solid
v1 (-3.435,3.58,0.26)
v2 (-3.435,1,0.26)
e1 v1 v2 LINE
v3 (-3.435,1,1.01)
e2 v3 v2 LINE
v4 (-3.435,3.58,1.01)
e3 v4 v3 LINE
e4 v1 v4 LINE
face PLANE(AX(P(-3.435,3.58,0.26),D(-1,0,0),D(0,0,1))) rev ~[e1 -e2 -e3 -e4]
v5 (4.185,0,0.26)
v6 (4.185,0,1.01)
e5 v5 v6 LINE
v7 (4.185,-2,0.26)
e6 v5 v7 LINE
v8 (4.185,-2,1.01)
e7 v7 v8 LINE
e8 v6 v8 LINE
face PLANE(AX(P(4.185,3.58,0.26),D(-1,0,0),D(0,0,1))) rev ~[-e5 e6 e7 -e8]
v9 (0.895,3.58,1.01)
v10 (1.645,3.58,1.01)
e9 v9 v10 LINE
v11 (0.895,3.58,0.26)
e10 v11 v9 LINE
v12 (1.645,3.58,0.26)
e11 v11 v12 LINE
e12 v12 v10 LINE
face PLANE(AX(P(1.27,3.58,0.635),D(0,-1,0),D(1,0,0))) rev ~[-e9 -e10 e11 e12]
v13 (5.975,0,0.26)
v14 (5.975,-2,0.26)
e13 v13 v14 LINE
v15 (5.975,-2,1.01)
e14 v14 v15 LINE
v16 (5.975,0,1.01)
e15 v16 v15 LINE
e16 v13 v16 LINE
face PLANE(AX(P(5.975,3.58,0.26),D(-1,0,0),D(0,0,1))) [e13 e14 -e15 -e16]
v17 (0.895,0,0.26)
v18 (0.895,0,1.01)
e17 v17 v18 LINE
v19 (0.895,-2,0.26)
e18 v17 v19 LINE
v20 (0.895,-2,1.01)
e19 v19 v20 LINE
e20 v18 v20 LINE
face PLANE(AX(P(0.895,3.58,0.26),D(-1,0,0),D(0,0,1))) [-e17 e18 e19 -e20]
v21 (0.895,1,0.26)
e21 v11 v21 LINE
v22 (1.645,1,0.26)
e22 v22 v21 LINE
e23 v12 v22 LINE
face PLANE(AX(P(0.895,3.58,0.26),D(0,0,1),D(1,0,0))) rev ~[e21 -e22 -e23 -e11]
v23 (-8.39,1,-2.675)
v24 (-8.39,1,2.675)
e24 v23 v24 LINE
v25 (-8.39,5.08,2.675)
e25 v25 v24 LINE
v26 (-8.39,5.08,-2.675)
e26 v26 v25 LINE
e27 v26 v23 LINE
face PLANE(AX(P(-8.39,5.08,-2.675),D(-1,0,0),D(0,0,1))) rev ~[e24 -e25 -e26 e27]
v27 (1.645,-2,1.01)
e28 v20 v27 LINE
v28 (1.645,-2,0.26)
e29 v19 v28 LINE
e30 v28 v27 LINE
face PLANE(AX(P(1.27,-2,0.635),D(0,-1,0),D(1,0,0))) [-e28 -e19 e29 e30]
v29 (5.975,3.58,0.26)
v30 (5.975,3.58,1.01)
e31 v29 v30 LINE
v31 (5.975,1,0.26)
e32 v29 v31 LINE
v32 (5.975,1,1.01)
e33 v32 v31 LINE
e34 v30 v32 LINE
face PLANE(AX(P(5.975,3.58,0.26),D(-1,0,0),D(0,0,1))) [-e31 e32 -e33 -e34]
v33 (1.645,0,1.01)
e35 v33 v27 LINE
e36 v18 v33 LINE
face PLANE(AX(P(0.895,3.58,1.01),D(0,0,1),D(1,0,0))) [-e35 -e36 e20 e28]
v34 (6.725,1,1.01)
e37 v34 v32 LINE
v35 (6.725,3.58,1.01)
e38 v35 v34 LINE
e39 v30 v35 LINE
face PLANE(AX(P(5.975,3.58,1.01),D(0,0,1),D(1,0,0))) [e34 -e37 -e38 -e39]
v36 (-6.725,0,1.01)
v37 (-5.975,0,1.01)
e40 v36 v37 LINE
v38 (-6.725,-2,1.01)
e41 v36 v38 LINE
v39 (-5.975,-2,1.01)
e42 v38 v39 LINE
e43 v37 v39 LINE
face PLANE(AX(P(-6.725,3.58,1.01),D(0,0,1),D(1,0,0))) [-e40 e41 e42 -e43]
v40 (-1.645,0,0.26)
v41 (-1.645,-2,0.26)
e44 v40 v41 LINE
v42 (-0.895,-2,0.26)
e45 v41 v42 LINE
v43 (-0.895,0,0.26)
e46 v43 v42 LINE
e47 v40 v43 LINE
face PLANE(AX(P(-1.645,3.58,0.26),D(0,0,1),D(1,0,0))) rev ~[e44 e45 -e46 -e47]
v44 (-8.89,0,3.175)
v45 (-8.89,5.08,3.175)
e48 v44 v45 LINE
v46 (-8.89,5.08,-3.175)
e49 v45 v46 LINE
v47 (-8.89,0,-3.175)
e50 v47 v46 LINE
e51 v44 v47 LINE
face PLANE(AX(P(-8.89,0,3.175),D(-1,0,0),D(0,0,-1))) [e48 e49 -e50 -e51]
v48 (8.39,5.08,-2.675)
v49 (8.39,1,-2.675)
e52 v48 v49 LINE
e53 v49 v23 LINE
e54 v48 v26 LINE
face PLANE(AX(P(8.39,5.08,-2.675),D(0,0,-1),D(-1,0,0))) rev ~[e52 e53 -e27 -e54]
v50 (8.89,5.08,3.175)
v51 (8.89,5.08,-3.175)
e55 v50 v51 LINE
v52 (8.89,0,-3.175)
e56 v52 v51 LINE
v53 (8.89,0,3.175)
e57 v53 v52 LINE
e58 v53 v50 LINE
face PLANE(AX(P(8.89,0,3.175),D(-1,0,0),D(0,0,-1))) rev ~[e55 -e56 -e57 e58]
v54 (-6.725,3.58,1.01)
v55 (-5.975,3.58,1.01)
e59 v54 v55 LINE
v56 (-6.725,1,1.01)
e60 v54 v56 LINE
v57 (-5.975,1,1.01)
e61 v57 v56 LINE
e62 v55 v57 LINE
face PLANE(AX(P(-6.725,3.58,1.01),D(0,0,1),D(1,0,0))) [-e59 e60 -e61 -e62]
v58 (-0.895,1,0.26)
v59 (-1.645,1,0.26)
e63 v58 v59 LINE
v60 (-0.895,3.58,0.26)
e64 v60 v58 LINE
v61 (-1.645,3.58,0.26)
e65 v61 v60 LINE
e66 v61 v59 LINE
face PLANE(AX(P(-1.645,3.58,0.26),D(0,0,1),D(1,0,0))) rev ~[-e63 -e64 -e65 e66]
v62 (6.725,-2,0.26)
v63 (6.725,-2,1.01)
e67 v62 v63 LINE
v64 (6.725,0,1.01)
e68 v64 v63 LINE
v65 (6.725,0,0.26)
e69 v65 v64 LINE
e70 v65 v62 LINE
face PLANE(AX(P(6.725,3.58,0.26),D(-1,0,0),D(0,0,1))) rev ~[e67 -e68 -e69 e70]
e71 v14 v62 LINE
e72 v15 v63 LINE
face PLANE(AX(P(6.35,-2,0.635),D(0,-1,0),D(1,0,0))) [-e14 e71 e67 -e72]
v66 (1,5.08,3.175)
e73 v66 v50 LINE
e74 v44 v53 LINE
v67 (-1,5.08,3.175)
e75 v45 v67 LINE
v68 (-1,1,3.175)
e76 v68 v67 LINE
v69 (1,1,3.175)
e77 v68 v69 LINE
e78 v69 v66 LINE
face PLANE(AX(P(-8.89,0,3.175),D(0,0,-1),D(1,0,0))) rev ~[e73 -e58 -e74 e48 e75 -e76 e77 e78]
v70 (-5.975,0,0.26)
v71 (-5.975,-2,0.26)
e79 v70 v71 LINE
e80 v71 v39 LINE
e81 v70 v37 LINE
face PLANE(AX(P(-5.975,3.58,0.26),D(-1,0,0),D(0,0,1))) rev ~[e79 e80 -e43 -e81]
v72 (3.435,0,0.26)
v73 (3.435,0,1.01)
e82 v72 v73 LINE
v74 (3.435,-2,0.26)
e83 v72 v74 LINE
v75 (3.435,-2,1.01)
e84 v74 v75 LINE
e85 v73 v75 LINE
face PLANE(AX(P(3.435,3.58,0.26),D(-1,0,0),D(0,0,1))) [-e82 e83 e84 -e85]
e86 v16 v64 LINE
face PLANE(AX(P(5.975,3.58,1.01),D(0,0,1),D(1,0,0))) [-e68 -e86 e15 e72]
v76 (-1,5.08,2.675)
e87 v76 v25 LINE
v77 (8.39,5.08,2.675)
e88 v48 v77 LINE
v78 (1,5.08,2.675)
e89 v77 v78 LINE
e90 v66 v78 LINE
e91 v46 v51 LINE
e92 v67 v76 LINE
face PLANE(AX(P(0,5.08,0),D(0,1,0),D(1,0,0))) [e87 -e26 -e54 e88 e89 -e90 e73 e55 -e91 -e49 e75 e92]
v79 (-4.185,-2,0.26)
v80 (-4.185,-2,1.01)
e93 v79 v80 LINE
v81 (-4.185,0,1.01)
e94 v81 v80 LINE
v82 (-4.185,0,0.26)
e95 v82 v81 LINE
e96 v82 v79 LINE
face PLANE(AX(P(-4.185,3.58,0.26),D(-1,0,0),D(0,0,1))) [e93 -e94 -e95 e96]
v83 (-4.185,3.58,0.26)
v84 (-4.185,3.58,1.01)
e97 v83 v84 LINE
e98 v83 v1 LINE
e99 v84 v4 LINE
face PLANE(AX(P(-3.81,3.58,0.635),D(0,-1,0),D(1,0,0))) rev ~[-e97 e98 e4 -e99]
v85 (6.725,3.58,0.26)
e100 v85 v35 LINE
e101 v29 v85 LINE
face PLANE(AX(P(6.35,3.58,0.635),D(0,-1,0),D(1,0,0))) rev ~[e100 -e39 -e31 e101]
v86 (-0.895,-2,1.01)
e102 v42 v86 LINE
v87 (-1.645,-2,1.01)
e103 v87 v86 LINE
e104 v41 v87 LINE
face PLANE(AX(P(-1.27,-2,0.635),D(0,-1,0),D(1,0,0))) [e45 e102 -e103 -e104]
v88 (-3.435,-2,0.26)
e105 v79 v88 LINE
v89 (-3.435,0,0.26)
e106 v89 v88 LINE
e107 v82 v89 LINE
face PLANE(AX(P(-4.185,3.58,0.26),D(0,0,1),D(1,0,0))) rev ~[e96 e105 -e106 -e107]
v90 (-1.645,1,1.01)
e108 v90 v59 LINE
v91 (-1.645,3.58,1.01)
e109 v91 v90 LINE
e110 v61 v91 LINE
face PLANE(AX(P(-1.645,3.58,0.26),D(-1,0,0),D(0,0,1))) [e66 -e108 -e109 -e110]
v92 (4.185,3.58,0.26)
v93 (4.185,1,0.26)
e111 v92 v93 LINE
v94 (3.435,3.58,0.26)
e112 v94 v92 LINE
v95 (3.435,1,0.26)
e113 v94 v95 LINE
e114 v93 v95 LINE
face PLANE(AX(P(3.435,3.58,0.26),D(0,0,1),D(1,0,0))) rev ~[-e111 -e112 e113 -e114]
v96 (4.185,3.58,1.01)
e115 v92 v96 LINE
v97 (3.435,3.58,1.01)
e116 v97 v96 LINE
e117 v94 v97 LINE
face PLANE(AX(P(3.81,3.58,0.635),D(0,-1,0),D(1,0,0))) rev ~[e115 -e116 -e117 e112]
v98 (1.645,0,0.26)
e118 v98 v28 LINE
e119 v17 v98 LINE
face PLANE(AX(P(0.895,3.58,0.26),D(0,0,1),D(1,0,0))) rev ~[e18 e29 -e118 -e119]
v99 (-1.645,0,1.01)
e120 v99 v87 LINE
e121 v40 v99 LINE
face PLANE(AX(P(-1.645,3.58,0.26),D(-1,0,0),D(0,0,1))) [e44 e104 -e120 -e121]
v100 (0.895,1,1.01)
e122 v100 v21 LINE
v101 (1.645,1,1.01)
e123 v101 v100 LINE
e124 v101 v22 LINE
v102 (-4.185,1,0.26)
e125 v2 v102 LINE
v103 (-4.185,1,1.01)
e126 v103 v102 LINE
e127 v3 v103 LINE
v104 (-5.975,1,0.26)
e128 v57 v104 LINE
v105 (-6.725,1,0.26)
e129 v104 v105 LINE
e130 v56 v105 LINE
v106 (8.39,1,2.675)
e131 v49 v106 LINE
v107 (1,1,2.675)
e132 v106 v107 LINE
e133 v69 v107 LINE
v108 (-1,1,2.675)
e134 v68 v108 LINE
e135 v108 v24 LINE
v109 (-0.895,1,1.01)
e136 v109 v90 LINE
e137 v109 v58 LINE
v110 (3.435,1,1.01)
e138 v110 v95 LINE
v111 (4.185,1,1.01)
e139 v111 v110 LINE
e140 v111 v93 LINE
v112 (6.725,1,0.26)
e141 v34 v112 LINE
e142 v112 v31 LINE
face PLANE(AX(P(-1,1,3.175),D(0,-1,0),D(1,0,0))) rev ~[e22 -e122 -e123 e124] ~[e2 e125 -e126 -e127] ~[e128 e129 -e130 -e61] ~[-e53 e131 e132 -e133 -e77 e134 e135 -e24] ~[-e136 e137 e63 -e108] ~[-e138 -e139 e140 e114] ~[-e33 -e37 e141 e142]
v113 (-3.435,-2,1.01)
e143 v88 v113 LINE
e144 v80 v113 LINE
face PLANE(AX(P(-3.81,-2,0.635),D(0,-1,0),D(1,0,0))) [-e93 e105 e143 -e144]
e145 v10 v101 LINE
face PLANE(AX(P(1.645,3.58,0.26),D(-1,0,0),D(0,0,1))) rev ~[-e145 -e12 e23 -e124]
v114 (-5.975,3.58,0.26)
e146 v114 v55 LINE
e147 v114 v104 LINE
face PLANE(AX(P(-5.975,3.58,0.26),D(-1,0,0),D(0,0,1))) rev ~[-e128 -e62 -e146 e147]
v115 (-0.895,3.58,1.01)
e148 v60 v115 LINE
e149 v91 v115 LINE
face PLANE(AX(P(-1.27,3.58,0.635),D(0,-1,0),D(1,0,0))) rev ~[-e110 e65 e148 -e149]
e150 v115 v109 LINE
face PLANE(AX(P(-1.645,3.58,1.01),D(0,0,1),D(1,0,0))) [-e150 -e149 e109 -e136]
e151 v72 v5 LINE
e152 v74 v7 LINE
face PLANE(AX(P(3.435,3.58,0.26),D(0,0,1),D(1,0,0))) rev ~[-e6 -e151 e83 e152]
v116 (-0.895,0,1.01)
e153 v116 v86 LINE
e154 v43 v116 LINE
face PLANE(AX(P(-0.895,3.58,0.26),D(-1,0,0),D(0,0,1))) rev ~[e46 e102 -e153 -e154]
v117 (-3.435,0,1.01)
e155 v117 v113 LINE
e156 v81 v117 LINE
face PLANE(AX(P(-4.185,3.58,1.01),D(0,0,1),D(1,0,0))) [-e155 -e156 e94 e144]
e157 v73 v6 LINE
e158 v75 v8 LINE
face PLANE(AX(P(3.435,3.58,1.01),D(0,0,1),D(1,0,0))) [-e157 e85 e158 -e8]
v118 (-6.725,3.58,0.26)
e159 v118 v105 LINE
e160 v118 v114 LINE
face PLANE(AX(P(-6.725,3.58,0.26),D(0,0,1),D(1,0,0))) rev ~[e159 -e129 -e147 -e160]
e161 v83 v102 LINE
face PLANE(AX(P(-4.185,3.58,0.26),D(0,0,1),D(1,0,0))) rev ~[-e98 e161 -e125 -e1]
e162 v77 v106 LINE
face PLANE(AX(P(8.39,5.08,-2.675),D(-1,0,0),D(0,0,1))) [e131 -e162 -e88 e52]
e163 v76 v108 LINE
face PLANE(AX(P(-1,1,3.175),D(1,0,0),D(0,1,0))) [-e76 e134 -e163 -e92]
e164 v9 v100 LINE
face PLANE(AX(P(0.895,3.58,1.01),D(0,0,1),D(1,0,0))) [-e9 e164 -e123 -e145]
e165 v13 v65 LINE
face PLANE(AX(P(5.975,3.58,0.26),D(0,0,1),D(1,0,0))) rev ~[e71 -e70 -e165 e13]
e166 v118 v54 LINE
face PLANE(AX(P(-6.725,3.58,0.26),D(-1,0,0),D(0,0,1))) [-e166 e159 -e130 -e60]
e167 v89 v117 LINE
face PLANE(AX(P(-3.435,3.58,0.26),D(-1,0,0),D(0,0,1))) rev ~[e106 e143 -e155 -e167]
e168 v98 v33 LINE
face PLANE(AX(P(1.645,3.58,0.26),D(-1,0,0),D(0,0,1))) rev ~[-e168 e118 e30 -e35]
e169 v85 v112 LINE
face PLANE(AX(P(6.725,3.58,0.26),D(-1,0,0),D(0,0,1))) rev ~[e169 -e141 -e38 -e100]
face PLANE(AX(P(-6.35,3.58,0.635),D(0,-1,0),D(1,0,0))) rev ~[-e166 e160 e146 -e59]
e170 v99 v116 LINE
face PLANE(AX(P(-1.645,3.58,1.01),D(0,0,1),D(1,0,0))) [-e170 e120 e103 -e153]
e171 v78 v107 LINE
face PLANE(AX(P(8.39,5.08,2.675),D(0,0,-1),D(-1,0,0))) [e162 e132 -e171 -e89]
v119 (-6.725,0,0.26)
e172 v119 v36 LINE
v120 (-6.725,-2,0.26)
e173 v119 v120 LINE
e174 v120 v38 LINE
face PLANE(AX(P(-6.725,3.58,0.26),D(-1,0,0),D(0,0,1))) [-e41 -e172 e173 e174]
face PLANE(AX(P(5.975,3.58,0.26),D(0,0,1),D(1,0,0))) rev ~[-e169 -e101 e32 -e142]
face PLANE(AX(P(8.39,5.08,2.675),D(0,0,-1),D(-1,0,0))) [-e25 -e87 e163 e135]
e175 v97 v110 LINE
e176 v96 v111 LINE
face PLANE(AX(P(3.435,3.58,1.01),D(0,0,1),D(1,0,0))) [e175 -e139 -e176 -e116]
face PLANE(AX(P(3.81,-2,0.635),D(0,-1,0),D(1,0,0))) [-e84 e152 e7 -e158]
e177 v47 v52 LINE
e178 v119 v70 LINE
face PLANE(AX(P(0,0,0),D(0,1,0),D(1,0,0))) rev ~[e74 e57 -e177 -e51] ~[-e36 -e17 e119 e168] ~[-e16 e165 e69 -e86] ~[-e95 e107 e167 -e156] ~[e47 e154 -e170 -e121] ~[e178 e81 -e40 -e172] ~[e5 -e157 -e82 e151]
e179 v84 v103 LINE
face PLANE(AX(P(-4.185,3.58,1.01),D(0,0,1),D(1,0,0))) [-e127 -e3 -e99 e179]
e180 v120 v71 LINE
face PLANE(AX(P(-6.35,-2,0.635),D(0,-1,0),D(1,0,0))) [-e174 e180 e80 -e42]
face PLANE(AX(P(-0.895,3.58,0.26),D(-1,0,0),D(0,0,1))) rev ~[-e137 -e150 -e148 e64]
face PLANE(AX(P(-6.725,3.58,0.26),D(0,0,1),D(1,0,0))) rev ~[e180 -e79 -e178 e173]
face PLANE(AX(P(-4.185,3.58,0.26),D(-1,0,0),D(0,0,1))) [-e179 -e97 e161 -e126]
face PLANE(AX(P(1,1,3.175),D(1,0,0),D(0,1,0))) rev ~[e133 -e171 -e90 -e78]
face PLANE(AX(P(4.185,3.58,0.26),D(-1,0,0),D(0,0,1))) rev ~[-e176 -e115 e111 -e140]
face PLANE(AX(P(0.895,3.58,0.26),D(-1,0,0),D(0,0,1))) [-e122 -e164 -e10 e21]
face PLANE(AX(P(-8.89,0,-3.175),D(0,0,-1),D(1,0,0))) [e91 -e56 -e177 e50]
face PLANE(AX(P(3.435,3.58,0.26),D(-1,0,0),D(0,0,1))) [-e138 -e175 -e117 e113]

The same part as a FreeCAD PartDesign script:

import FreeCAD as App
import Part
import Sketcher
Q = App.Units.Quantity

doc = App.newDocument("Part")
body = doc.addObject("PartDesign::Body", "Body")

sketch1 = body.newObject("Sketcher::SketchObject", "Sketch")
sketch1.AttachmentSupport = (doc.getObject("XZ_Plane"), [""])
sketch1.MapMode = "FlatFace"
sketch1.addGeometry([
    Part.LineSegment(App.Vector(-9, -3, 0), App.Vector(-9, 3, 0)),
    Part.LineSegment(App.Vector(-9, 3, 0), App.Vector(9, 3, 0)),
    Part.LineSegment(App.Vector(9, 3, 0), App.Vector(9, -3, 0)),
    Part.LineSegment(App.Vector(9, -3, 0), App.Vector(-9, -3, 0)),
], False)
sketch1.addConstraint([
    Sketcher.Constraint("Coincident", 0, 2, 1, 1),
    Sketcher.Constraint("Coincident", 1, 2, 2, 1),
    Sketcher.Constraint("Coincident", 2, 2, 3, 1),
    Sketcher.Constraint("Coincident", 3, 2, 0, 1),
    Sketcher.Constraint("Vertical", 0),
    Sketcher.Constraint("Horizontal", 1),
    Sketcher.Constraint("Vertical", 2),
    Sketcher.Constraint("Horizontal", 3),
    Sketcher.Constraint("Symmetric", 0, 2, 2, 2, -1, 1),
    Sketcher.Constraint("DistanceX", 1, 1, 1, 2, Q("0.7 in")),
    Sketcher.Constraint("DistanceY", 0, 1, 0, 2, Q("0.25 in")),
])
pad1 = body.newObject("PartDesign::Pad", "Pad")
pad1.Profile = sketch1
pad1.Length = Q("0.2 in")
pad1.Reversed = True

sketch2 = body.newObject("Sketcher::SketchObject", "Sketch001")
sketch2.AttachmentSupport = (doc.getObject("XZ_Plane"), [""])
sketch2.MapMode = "FlatFace"
sketch2.AttachmentOffset = App.Placement(App.Vector(0, 0, -0.2 * 25.4), App.Rotation())
sketch2.addGeometry([
    Part.LineSegment(App.Vector(8, 3, 0), App.Vector(8, -3, 0)),
    Part.LineSegment(App.Vector(8, -3, 0), App.Vector(-8, -3, 0)),
    Part.LineSegment(App.Vector(-8, -3, 0), App.Vector(-8, 3, 0)),
    Part.LineSegment(App.Vector(-8, 3, 0), App.Vector(8, 3, 0)),
], False)
sketch2.addConstraint([
    Sketcher.Constraint("Coincident", 0, 2, 1, 1),
    Sketcher.Constraint("Coincident", 1, 2, 2, 1),
    Sketcher.Constraint("Coincident", 2, 2, 3, 1),
    Sketcher.Constraint("Coincident", 3, 2, 0, 1),
    Sketcher.Constraint("Vertical", 0),
    Sketcher.Constraint("Horizontal", 1),
    Sketcher.Constraint("Vertical", 2),
    Sketcher.Constraint("Horizontal", 3),
    Sketcher.Constraint("Symmetric", 0, 2, 2, 2, -1, 1),
    Sketcher.Constraint("DistanceX", 1, 2, 1, 1, 16.78),
    Sketcher.Constraint("DistanceY", 0, 2, 0, 1, 5.35),
])
pocket1 = body.newObject("PartDesign::Pocket", "Pocket")
pocket1.Profile = sketch2
pocket1.Length = 4.08
pocket1.Reversed = True

sketch3 = body.newObject("Sketcher::SketchObject", "Sketch002")
sketch3.AttachmentSupport = (doc.getObject("XY_Plane"), [""])
sketch3.MapMode = "FlatFace"
sketch3.AttachmentOffset = App.Placement(App.Vector(0, 0, 0.125 * 25.4), App.Rotation())
sketch3.addGeometry([
    Part.LineSegment(App.Vector(-1, 5.1, 0), App.Vector(-1, 1, 0)),
    Part.LineSegment(App.Vector(-1, 1, 0), App.Vector(1, 1, 0)),
    Part.LineSegment(App.Vector(1, 1, 0), App.Vector(1, 5.1, 0)),
    Part.LineSegment(App.Vector(1, 5.1, 0), App.Vector(-1, 5.1, 0)),
], False)
sketch3.addConstraint([
    Sketcher.Constraint("Coincident", 0, 2, 1, 1),
    Sketcher.Constraint("Coincident", 1, 2, 2, 1),
    Sketcher.Constraint("Coincident", 2, 2, 3, 1),
    Sketcher.Constraint("Coincident", 3, 2, 0, 1),
    Sketcher.Constraint("Vertical", 0),
    Sketcher.Constraint("Horizontal", 1),
    Sketcher.Constraint("Vertical", 2),
    Sketcher.Constraint("Horizontal", 3),
    Sketcher.Constraint("DistanceY", -1, 1, 2, 2, Q("0.2 in")),
    Sketcher.Constraint("DistanceX", 1, 1, 1, 2, 2.0),
    Sketcher.Constraint("DistanceY", 0, 2, 0, 1, 4.08),
    Sketcher.Constraint("DistanceX", 0, 2, -1, 1, 1.0),
])
pocket2 = body.newObject("PartDesign::Pocket", "Pocket001")
pocket2.Profile = sketch3
pocket2.Length = 1

sketch4 = body.newObject("Sketcher::SketchObject", "Sketch003")
sketch4.AttachmentSupport = (doc.getObject("XZ_Plane"), [""])
sketch4.MapMode = "FlatFace"
sketch4.addGeometry([
    Part.LineSegment(App.Vector(-1.6, 1, 0), App.Vector(-1.6, 0.3, 0)),
    Part.LineSegment(App.Vector(-1.6, 0.3, 0), App.Vector(-0.9, 0.3, 0)),
    Part.LineSegment(App.Vector(-0.9, 0.3, 0), App.Vector(-0.9, 1, 0)),
    Part.LineSegment(App.Vector(-0.9, 1, 0), App.Vector(-1.6, 1, 0)),
    Part.LineSegment(App.Vector(0.9, 1, 0), App.Vector(0.9, 0.3, 0)),
    Part.LineSegment(App.Vector(0.9, 0.3, 0), App.Vector(1.6, 0.3, 0)),
    Part.LineSegment(App.Vector(1.6, 0.3, 0), App.Vector(1.6, 1, 0)),
    Part.LineSegment(App.Vector(1.6, 1, 0), App.Vector(0.9, 1, 0)),
    Part.LineSegment(App.Vector(3.4, 1, 0), App.Vector(3.4, 0.3, 0)),
    Part.LineSegment(App.Vector(3.4, 0.3, 0), App.Vector(4.2, 0.3, 0)),
    Part.LineSegment(App.Vector(4.2, 0.3, 0), App.Vector(4.2, 1, 0)),
    Part.LineSegment(App.Vector(4.2, 1, 0), App.Vector(3.4, 1, 0)),
    Part.LineSegment(App.Vector(6, 1, 0), App.Vector(6, 0.3, 0)),
    Part.LineSegment(App.Vector(6, 0.3, 0), App.Vector(6.7, 0.3, 0)),
    Part.LineSegment(App.Vector(6.7, 0.3, 0), App.Vector(6.7, 1, 0)),
    Part.LineSegment(App.Vector(6.7, 1, 0), App.Vector(6, 1, 0)),
    Part.LineSegment(App.Vector(-4.2, 1, 0), App.Vector(-4.2, 0.3, 0)),
    Part.LineSegment(App.Vector(-4.2, 0.3, 0), App.Vector(-3.4, 0.3, 0)),
    Part.LineSegment(App.Vector(-3.4, 0.3, 0), App.Vector(-3.4, 1, 0)),
    Part.LineSegment(App.Vector(-3.4, 1, 0), App.Vector(-4.2, 1, 0)),
    Part.LineSegment(App.Vector(-6.7, 1, 0), App.Vector(-6.7, 0.3, 0)),
    Part.LineSegment(App.Vector(-6.7, 0.3, 0), App.Vector(-6, 0.3, 0)),
    Part.LineSegment(App.Vector(-6, 0.3, 0), App.Vector(-6, 1, 0)),
    Part.LineSegment(App.Vector(-6, 1, 0), App.Vector(-6.7, 1, 0)),
], False)
sketch4.addConstraint([
    Sketcher.Constraint("Coincident", 0, 2, 1, 1),
    Sketcher.Constraint("Coincident", 1, 2, 2, 1),
    Sketcher.Constraint("Coincident", 2, 2, 3, 1),
    Sketcher.Constraint("Coincident", 3, 2, 0, 1),
    Sketcher.Constraint("Coincident", 4, 2, 5, 1),
    Sketcher.Constraint("Coincident", 5, 2, 6, 1),
    Sketcher.Constraint("Coincident", 6, 2, 7, 1),
    Sketcher.Constraint("Coincident", 7, 2, 4, 1),
    Sketcher.Constraint("Coincident", 8, 2, 9, 1),
    Sketcher.Constraint("Coincident", 9, 2, 10, 1),
    Sketcher.Constraint("Coincident", 10, 2, 11, 1),
    Sketcher.Constraint("Coincident", 11, 2, 8, 1),
    Sketcher.Constraint("Coincident", 12, 2, 13, 1),
    Sketcher.Constraint("Coincident", 13, 2, 14, 1),
    Sketcher.Constraint("Coincident", 14, 2, 15, 1),
    Sketcher.Constraint("Coincident", 15, 2, 12, 1),
    Sketcher.Constraint("Coincident", 16, 2, 17, 1),
    Sketcher.Constraint("Coincident", 17, 2, 18, 1),
    Sketcher.Constraint("Coincident", 18, 2, 19, 1),
    Sketcher.Constraint("Coincident", 19, 2, 16, 1),
    Sketcher.Constraint("Coincident", 20, 2, 21, 1),
    Sketcher.Constraint("Coincident", 21, 2, 22, 1),
    Sketcher.Constraint("Coincident", 22, 2, 23, 1),
    Sketcher.Constraint("Coincident", 23, 2, 20, 1),
    Sketcher.Constraint("Vertical", 0),
    Sketcher.Constraint("Horizontal", 1),
    Sketcher.Constraint("Vertical", 2),
    Sketcher.Constraint("Horizontal", 3),
    Sketcher.Constraint("Vertical", 4),
    Sketcher.Constraint("Horizontal", 5),
    Sketcher.Constraint("Vertical", 6),
    Sketcher.Constraint("Horizontal", 7),
    Sketcher.Constraint("Vertical", 8),
    Sketcher.Constraint("Horizontal", 9),
    Sketcher.Constraint("Vertical", 10),
    Sketcher.Constraint("Horizontal", 11),
    Sketcher.Constraint("Vertical", 12),
    Sketcher.Constraint("Horizontal", 13),
    Sketcher.Constraint("Vertical", 14),
    Sketcher.Constraint("Horizontal", 15),
    Sketcher.Constraint("Vertical", 16),
    Sketcher.Constraint("Horizontal", 17),
    Sketcher.Constraint("Vertical", 18),
    Sketcher.Constraint("Horizontal", 19),
    Sketcher.Constraint("Vertical", 20),
    Sketcher.Constraint("Horizontal", 21),
    Sketcher.Constraint("Vertical", 22),
    Sketcher.Constraint("Horizontal", 23),
    Sketcher.Constraint("Symmetric", 1, 2, 4, 2, -2),
    Sketcher.Constraint("Symmetric", 3, 2, 6, 2, -2),
    Sketcher.Constraint("Symmetric", 9, 2, 16, 2, -2),
    Sketcher.Constraint("Symmetric", 11, 2, 18, 2, -2),
    Sketcher.Constraint("Symmetric", 13, 2, 20, 2, -2),
    Sketcher.Constraint("Symmetric", 15, 2, 22, 2, -2),
    Sketcher.Constraint("Horizontal", 5, 2, 8, 2),
    Sketcher.Constraint("Horizontal", 7, 2, 10, 2),
    Sketcher.Constraint("Horizontal", 9, 2, 12, 2),
    Sketcher.Constraint("Horizontal", 11, 2, 14, 2),
    Sketcher.Constraint("Equal", 7, 9),
    Sketcher.Constraint("Equal", 11, 13),
    Sketcher.Constraint("Equal", 23, 0),
    Sketcher.Constraint("DistanceX", 0, 2, 4, 2, Q("0.1 in")),
    Sketcher.Constraint("DistanceX", 4, 2, 8, 2, Q("0.1 in")),
    Sketcher.Constraint("DistanceX", 8, 2, 12, 2, Q("0.1 in")),
    Sketcher.Constraint("DistanceX", 1, 1, 1, 2, 0.75),
    Sketcher.Constraint("DistanceY", -1, 1, 0, 2, 0.26),
])
pad2 = body.newObject("PartDesign::Pad", "Pad001")
pad2.Profile = sketch4
pad2.Type = "TwoLengths"
pad2.Length = 2
pad2.Length2 = 3.58

doc.recompute()
